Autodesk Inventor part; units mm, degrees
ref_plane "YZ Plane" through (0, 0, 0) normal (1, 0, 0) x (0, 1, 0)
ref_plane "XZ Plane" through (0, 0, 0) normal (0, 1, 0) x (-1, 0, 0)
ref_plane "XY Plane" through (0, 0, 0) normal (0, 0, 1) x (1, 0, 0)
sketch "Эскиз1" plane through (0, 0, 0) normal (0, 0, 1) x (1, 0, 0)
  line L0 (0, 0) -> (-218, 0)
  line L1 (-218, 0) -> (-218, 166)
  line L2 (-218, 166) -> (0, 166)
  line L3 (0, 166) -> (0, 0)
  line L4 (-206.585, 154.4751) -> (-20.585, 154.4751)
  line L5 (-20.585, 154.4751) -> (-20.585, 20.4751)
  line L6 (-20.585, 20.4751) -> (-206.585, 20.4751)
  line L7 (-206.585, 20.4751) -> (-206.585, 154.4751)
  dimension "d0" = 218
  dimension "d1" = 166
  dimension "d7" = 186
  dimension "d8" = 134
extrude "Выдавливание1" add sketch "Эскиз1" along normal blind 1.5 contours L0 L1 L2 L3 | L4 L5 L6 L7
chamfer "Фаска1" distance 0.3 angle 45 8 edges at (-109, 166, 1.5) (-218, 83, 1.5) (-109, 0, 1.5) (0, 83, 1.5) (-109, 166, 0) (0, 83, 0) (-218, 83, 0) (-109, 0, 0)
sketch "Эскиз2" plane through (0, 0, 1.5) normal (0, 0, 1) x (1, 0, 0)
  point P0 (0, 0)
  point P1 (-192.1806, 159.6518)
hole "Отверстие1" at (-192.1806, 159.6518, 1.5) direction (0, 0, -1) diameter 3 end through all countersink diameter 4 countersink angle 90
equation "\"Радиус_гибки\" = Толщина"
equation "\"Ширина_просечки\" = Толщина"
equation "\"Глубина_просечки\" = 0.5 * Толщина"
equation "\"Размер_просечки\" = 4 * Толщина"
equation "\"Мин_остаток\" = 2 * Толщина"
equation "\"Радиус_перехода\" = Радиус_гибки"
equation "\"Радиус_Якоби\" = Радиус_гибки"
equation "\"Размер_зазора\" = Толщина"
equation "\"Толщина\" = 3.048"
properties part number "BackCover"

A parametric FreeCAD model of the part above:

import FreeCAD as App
import Part
import Sketcher
Q = App.Units.Quantity


def edges_at(feature, points):
    """Names of the edges that pass closest to the given points."""
    edges = feature.Shape.Edges
    near = lambda p: min(range(len(edges)), key=lambda i: edges[i].distToShape(Part.Vertex(*p))[0])
    return sorted({f"Edge{near(p) + 1}" for p in points})

doc = App.newDocument("Part")
body = doc.addObject("PartDesign::Body", "Body")

sketch1 = doc.addObject("Sketcher::SketchObject", "Sketch")
body.addObject(sketch1)
sketch1.AttachmentSupport = (doc.XY_Plane, [""])
sketch1.MapMode = "FlatFace"
sketch1.addGeometry([
    Part.LineSegment(App.Vector(-218, 0, 0), App.Vector(0, 0, 0)),
    Part.LineSegment(App.Vector(0, 0, 0), App.Vector(0, 166, 0)),
    Part.LineSegment(App.Vector(0, 166, 0), App.Vector(-218, 166, 0)),
    Part.LineSegment(App.Vector(-218, 166, 0), App.Vector(-218, 0, 0)),
], False)
sketch1.addConstraint([
    Sketcher.Constraint("Coincident", 0, 2, 1, 1),
    Sketcher.Constraint("Coincident", 1, 2, 2, 1),
    Sketcher.Constraint("Coincident", 2, 2, 3, 1),
    Sketcher.Constraint("Coincident", 3, 2, 0, 1),
    Sketcher.Constraint("Horizontal", 0),
    Sketcher.Constraint("Vertical", 1),
    Sketcher.Constraint("Horizontal", 2),
    Sketcher.Constraint("Vertical", 3),
    Sketcher.Constraint("Coincident", 0, 2, -1, 1),
    Sketcher.Constraint("DistanceX", 0, 1, 0, 2, Q("218 mm")),
    Sketcher.Constraint("DistanceY", 1, 1, 1, 2, Q("166 mm")),
])
pad1 = doc.addObject("PartDesign::Pad", "Pad")
body.addObject(pad1)
pad1.Profile = sketch1
pad1.Length = 1.5
doc.recompute()

chamfer = doc.addObject("PartDesign::Chamfer", "Chamfer")
body.addObject(chamfer)
chamfer.Base = (pad1, edges_at(pad1, [
    (-109, 166, 1.5),
    (-218, 83, 1.5),
    (-109, 0, 1.5),
    (0, 83, 1.5),
    (-109, 166, 0),
    (0, 83, 0),
    (-218, 83, 0),
    (-109, 0, 0),
]))
chamfer.Size = 0.3

sketch2 = doc.addObject("Sketcher::SketchObject", "Sketch001")
body.addObject(sketch2)
sketch2.AttachmentSupport = (doc.XY_Plane, [""])
sketch2.MapMode = "FlatFace"
sketch2.AttachmentOffset = App.Placement(App.Vector(0, 0, 1.5), App.Rotation())
sketch2.addGeometry(Part.Circle(App.Vector(-192.2, 159.7, 0), App.Vector(0, 0, 1), 1.5), False)
sketch2.addConstraint([
    Sketcher.Constraint("Diameter", 0, Q("3 mm")),
    Sketcher.Constraint("DistanceX", 0, 3, -1, 1, Q("192.1806 mm")),
    Sketcher.Constraint("DistanceY", -1, 1, 0, 3, Q("159.6518 mm")),
])
doc.recompute()
hole = doc.addObject("PartDesign::Hole", "Hole")
body.addObject(hole)
hole.Profile = sketch2
hole.ThreadType = "None"
hole.Diameter = 3
hole.DepthType = "ThroughAll"
hole.HoleCutType = "Countersink"
hole.HoleCutDiameter = 4
hole.HoleCutCountersinkAngle = 90

doc.recompute()
